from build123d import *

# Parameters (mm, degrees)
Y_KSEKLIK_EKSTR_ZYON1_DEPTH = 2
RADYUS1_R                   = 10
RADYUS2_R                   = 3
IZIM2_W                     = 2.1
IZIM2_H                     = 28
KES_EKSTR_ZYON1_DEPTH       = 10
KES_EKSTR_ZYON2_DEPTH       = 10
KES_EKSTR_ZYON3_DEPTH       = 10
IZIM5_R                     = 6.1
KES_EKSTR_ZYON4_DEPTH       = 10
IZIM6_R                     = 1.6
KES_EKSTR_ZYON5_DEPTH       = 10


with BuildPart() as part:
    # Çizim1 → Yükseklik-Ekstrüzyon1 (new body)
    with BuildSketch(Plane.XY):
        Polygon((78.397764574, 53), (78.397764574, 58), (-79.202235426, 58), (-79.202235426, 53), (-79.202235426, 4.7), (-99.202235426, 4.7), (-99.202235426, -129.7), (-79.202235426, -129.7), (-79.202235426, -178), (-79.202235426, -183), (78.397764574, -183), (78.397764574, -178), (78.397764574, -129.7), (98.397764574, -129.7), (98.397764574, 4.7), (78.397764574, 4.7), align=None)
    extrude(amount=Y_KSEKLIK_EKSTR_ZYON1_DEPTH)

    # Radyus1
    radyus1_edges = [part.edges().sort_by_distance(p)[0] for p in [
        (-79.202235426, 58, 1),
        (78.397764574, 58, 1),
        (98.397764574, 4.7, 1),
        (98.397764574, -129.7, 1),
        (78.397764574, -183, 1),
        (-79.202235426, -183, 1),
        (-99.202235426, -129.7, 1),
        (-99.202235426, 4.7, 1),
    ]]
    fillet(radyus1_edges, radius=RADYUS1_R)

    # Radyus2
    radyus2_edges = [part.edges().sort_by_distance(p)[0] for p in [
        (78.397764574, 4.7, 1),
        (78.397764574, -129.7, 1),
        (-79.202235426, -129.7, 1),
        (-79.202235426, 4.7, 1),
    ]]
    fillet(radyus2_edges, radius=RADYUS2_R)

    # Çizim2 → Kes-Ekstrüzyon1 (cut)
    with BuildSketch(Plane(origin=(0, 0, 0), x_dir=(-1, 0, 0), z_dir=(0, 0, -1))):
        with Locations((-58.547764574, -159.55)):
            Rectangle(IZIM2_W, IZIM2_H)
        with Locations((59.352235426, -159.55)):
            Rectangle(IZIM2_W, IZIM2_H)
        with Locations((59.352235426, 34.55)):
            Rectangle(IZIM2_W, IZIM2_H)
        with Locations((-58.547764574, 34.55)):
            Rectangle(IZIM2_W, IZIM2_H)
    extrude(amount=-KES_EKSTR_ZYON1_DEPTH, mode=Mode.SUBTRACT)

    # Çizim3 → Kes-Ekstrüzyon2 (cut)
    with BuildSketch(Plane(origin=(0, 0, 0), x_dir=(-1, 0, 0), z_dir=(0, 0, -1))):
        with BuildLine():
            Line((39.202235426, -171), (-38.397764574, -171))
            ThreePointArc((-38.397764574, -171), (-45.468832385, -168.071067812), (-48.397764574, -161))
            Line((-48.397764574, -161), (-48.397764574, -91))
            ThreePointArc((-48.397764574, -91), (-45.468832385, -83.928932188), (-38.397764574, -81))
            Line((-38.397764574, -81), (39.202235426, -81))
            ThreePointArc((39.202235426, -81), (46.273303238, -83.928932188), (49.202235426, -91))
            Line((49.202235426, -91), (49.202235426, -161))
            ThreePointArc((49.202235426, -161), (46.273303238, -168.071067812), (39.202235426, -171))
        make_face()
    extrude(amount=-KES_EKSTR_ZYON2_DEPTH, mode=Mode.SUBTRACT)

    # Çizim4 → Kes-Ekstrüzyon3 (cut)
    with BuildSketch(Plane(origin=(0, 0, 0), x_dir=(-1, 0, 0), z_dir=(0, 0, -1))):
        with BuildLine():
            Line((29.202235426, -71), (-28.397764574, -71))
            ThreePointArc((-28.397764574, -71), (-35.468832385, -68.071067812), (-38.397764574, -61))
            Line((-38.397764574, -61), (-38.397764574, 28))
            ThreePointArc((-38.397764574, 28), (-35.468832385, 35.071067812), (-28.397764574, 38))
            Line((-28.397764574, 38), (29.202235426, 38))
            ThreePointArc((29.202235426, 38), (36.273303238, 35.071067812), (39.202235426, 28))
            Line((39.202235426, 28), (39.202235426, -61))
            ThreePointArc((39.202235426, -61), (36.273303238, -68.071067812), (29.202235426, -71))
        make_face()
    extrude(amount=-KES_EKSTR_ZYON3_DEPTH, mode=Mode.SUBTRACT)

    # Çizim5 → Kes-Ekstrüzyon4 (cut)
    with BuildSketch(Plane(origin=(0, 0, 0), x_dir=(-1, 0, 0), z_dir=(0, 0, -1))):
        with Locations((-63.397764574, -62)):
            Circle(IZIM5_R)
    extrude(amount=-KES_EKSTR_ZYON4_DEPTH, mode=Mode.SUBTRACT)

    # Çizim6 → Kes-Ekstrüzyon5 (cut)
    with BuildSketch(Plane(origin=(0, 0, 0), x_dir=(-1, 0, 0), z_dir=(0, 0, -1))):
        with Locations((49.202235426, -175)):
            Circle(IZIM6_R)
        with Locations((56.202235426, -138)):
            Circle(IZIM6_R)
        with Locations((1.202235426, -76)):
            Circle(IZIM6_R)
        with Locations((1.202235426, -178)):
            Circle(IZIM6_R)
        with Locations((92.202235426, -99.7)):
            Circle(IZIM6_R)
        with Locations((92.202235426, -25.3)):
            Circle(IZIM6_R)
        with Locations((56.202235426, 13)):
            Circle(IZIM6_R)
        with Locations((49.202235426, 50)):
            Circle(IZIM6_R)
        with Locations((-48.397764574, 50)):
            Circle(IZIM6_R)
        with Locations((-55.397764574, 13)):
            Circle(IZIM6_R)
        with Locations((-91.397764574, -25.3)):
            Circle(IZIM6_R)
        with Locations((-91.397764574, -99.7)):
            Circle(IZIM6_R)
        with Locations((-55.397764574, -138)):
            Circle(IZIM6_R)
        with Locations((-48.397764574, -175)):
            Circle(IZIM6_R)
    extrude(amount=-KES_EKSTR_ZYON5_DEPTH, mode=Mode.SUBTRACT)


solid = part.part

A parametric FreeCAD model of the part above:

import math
import FreeCAD as App
import Part
import Sketcher
from FreeCAD import Vector
Q = App.Units.Quantity


def edges_at(feature, points):
    """Names of the edges that pass closest to the given points."""
    edges = feature.Shape.Edges
    near = lambda p: min(range(len(edges)), key=lambda i: edges[i].distToShape(Part.Vertex(*p))[0])
    return sorted({f"Edge{near(p) + 1}" for p in points})

doc = App.newDocument("Part")
body = doc.addObject("PartDesign::Body", "Body")

# Sketch on XY plane
sketch1 = body.newObject("Sketcher::SketchObject", "Sketch")
sketch1.AttachmentSupport = (doc.getObject("XY_Plane"), [""])
sketch1.MapMode = "FlatFace"
sketch1.addGeometry([
    Part.LineSegment(Vector(78, 58, 0), Vector(-79, 58, 0)),  # 0
    Part.LineSegment(Vector(-79, 58, 0), Vector(-79, 5, 0)),  # 1
    Part.LineSegment(Vector(-79, 5, 0), Vector(-99, 5, 0)),  # 2
    Part.LineSegment(Vector(-99, 5, 0), Vector(-99, -130, 0)),  # 3
    Part.LineSegment(Vector(-99, -130, 0), Vector(-79, -130, 0)),  # 4
    Part.LineSegment(Vector(-79, -130, 0), Vector(-79, -183, 0)),  # 5
    Part.LineSegment(Vector(-79, -183, 0), Vector(78, -183, 0)),  # 6
    Part.LineSegment(Vector(78, -183, 0), Vector(78, -130, 0)),  # 7
    Part.LineSegment(Vector(78, -130, 0), Vector(98, -130, 0)),  # 8
    Part.LineSegment(Vector(98, -130, 0), Vector(98, 5, 0)),  # 9
    Part.LineSegment(Vector(98, 5, 0), Vector(78, 5, 0)),  # 10
    Part.LineSegment(Vector(78, 5, 0), Vector(78, 58, 0)),  # 11
], False)
sketch1.addConstraint([
    Sketcher.Constraint("Coincident", 0, 2, 1, 1),
    Sketcher.Constraint("Coincident", 1, 2, 2, 1),
    Sketcher.Constraint("Coincident", 2, 2, 3, 1),
    Sketcher.Constraint("Coincident", 3, 2, 4, 1),
    Sketcher.Constraint("Coincident", 4, 2, 5, 1),
    Sketcher.Constraint("Coincident", 5, 2, 6, 1),
    Sketcher.Constraint("Coincident", 6, 2, 7, 1),
    Sketcher.Constraint("Coincident", 7, 2, 8, 1),
    Sketcher.Constraint("Coincident", 8, 2, 9, 1),
    Sketcher.Constraint("Coincident", 9, 2, 10, 1),
    Sketcher.Constraint("Coincident", 10, 2, 11, 1),
    Sketcher.Constraint("Coincident", 11, 2, 0, 1),
    Sketcher.Constraint("Horizontal", 0),
    Sketcher.Constraint("Vertical", 1),
    Sketcher.Constraint("Horizontal", 2),
    Sketcher.Constraint("Vertical", 3),
    Sketcher.Constraint("Horizontal", 4),
    Sketcher.Constraint("Vertical", 5),
    Sketcher.Constraint("Horizontal", 6),
    Sketcher.Constraint("Vertical", 7),
    Sketcher.Constraint("Horizontal", 8),
    Sketcher.Constraint("Vertical", 9),
    Sketcher.Constraint("Horizontal", 10),
    Sketcher.Constraint("Vertical", 11),
    Sketcher.Constraint("Horizontal", 4, 2, 7, 2),
    Sketcher.Constraint("Horizontal", 2, 2, 9, 2),
    Sketcher.Constraint("Vertical", 1, 2, 4, 2),
    Sketcher.Constraint("Vertical", 7, 2, 10, 2),
    Sketcher.Constraint("Equal", 4, 8),
    Sketcher.Constraint("Equal", 1, 5),
    Sketcher.Constraint("DistanceX", 2, 2, 2, 1, Q("20 mm")),
    Sketcher.Constraint("DistanceX", 0, 2, 0, 1, Q("157.6 mm")),
    Sketcher.Constraint("DistanceY", 1, 2, 1, 1, Q("53.3 mm")),
    Sketcher.Constraint("DistanceY", 3, 2, 3, 1, Q("134.4 mm")),
    Sketcher.Constraint("DistanceY", -1, 1, 0, 2, Q("58 mm")),
    Sketcher.Constraint("DistanceX", 0, 2, -1, 1, Q("79.202235 mm")),
])
pad1 = body.newObject("PartDesign::Pad", "Pad")
pad1.Profile = sketch1
pad1.Length = 2
doc.recompute()

fillet = body.newObject("PartDesign::Fillet", "Fillet")
fillet.Base = (pad1, edges_at(pad1, [
    (-79.202, 58, 1),
    (78.398, 58, 1),
    (98.398, 4.7, 1),
    (98.398, -129.7, 1),
    (78.398, -183, 1),
    (-79.202, -183, 1),
    (-99.202, -129.7, 1),
    (-99.202, 4.7, 1),
]))
fillet.Radius = 10
doc.recompute()

fillet2 = body.newObject("PartDesign::Fillet", "Fillet001")
fillet2.Base = (fillet, edges_at(fillet, [
    (78.398, 4.7, 1),
    (78.398, -129.7, 1),
    (-79.202, -129.7, 1),
    (-79.202, 4.7, 1),
]))
fillet2.Radius = 3

# Sketch on XY plane
sketch2 = body.newObject("Sketcher::SketchObject", "Sketch001")
sketch2.AttachmentSupport = (doc.getObject("XY_Plane"), [""])
sketch2.MapMode = "FlatFace"
sketch2.addGeometry([
    Part.LineSegment(Vector(59.6, -145.6, 0), Vector(59.6, -173.6, 0)),  # 0
    Part.LineSegment(Vector(59.6, -173.6, 0), Vector(57.5, -173.6, 0)),  # 1
    Part.LineSegment(Vector(57.5, -173.6, 0), Vector(57.5, -145.6, 0)),  # 2
    Part.LineSegment(Vector(57.5, -145.6, 0), Vector(59.6, -145.6, 0)),  # 3
    Part.LineSegment(Vector(-58.3, -145.6, 0), Vector(-58.3, -173.6, 0)),  # 4
    Part.LineSegment(Vector(-58.3, -173.6, 0), Vector(-60.4, -173.6, 0)),  # 5
    Part.LineSegment(Vector(-60.4, -173.6, 0), Vector(-60.4, -145.6, 0)),  # 6
    Part.LineSegment(Vector(-60.4, -145.6, 0), Vector(-58.3, -145.6, 0)),  # 7
    Part.LineSegment(Vector(-58.3, 48.5, 0), Vector(-58.3, 20.6, 0)),  # 8
    Part.LineSegment(Vector(-58.3, 20.6, 0), Vector(-60.4, 20.6, 0)),  # 9
    Part.LineSegment(Vector(-60.4, 20.6, 0), Vector(-60.4, 48.5, 0)),  # 10
    Part.LineSegment(Vector(-60.4, 48.5, 0), Vector(-58.3, 48.5, 0)),  # 11
    Part.LineSegment(Vector(59.6, 48.5, 0), Vector(59.6, 20.6, 0)),  # 12
    Part.LineSegment(Vector(59.6, 20.6, 0), Vector(57.5, 20.6, 0)),  # 13
    Part.LineSegment(Vector(57.5, 20.6, 0), Vector(57.5, 48.5, 0)),  # 14
    Part.LineSegment(Vector(57.5, 48.5, 0), Vector(59.6, 48.5, 0)),  # 15
], False)
sketch2.addConstraint([
    Sketcher.Constraint("Coincident", 0, 2, 1, 1),
    Sketcher.Constraint("Coincident", 1, 2, 2, 1),
    Sketcher.Constraint("Coincident", 2, 2, 3, 1),
    Sketcher.Constraint("Coincident", 3, 2, 0, 1),
    Sketcher.Constraint("Coincident", 4, 2, 5, 1),
    Sketcher.Constraint("Coincident", 5, 2, 6, 1),
    Sketcher.Constraint("Coincident", 6, 2, 7, 1),
    Sketcher.Constraint("Coincident", 7, 2, 4, 1),
    Sketcher.Constraint("Coincident", 8, 2, 9, 1),
    Sketcher.Constraint("Coincident", 9, 2, 10, 1),
    Sketcher.Constraint("Coincident", 10, 2, 11, 1),
    Sketcher.Constraint("Coincident", 11, 2, 8, 1),
    Sketcher.Constraint("Coincident", 12, 2, 13, 1),
    Sketcher.Constraint("Coincident", 13, 2, 14, 1),
    Sketcher.Constraint("Coincident", 14, 2, 15, 1),
    Sketcher.Constraint("Coincident", 15, 2, 12, 1),
    Sketcher.Constraint("Vertical", 0),
    Sketcher.Constraint("Horizontal", 1),
    Sketcher.Constraint("Vertical", 2),
    Sketcher.Constraint("Horizontal", 3),
    Sketcher.Constraint("Vertical", 4),
    Sketcher.Constraint("Horizontal", 5),
    Sketcher.Constraint("Vertical", 6),
    Sketcher.Constraint("Horizontal", 7),
    Sketcher.Constraint("Vertical", 8),
    Sketcher.Constraint("Horizontal", 9),
    Sketcher.Constraint("Vertical", 10),
    Sketcher.Constraint("Horizontal", 11),
    Sketcher.Constraint("Vertical", 12),
    Sketcher.Constraint("Horizontal", 13),
    Sketcher.Constraint("Vertical", 14),
    Sketcher.Constraint("Horizontal", 15),
    Sketcher.Constraint("Horizontal", 1, 2, 4, 2),
    Sketcher.Constraint("Horizontal", 3, 2, 6, 2),
    Sketcher.Constraint("Horizontal", 9, 2, 12, 2),
    Sketcher.Constraint("Horizontal", 11, 2, 14, 2),
    Sketcher.Constraint("Vertical", 7, 2, 8, 2),
    Sketcher.Constraint("Vertical", 6, 2, 9, 2),
    Sketcher.Constraint("Vertical", 3, 2, 12, 2),
    Sketcher.Constraint("Vertical", 2, 2, 13, 2),
    Sketcher.Constraint("Equal", 3, 5),
    Sketcher.Constraint("Equal", 6, 8),
    Sketcher.Constraint("DistanceY", 0, 2, 0, 1, Q("28 mm")),
    Sketcher.Constraint("DistanceX", 1, 2, 1, 1, Q("2.1 mm")),
    Sketcher.Constraint("DistanceX", 5, 2, 0, 2, Q("120 mm")),
    Sketcher.Constraint("DistanceY", 7, 2, 8, 2, Q("166.1 mm")),
    Sketcher.Constraint("DistanceY", 0, 2, -1, 1, Q("173.55 mm")),
    Sketcher.Constraint("DistanceX", -1, 1, 0, 2, Q("59.597765 mm")),
])
pocket1 = body.newObject("PartDesign::Pocket", "Pocket")
pocket1.Profile = sketch2
pocket1.Length = 10
pocket1.Reversed = True

# Sketch on XY plane
sketch3 = body.newObject("Sketcher::SketchObject", "Sketch002")
sketch3.AttachmentSupport = (doc.getObject("XY_Plane"), [""])
sketch3.MapMode = "FlatFace"
sketch3.addGeometry([
    Part.LineSegment(Vector(38, -171, 0), Vector(-39, -171, 0)),  # 0
    Part.ArcOfCircle(Part.Circle(Vector(-39, -161, 0), Vector(0, 0, 1), 10), math.radians(180), math.radians(270)),  # 1
    Part.LineSegment(Vector(-49, -161, 0), Vector(-49, -91, 0)),  # 2
    Part.ArcOfCircle(Part.Circle(Vector(-39, -91, 0), Vector(0, 0, 1), 10), math.radians(90), math.radians(180)),  # 3
    Part.LineSegment(Vector(-39, -81, 0), Vector(38, -81, 0)),  # 4
    Part.ArcOfCircle(Part.Circle(Vector(38, -91, 0), Vector(0, 0, 1), 10), math.radians(0), math.radians(90)),  # 5
    Part.LineSegment(Vector(48, -91, 0), Vector(48, -161, 0)),  # 6
    Part.ArcOfCircle(Part.Circle(Vector(38, -161, 0), Vector(0, 0, 1), 10), math.radians(-90), math.radians(0)),  # 7
], False)
sketch3.addConstraint([
    Sketcher.Constraint("Tangent", 0, 2, 1, 2),
    Sketcher.Constraint("Tangent", 1, 1, 2, 1),
    Sketcher.Constraint("Tangent", 2, 2, 3, 2),
    Sketcher.Constraint("Tangent", 3, 1, 4, 1),
    Sketcher.Constraint("Tangent", 4, 2, 5, 2),
    Sketcher.Constraint("Tangent", 5, 1, 6, 1),
    Sketcher.Constraint("Tangent", 6, 2, 7, 2),
    Sketcher.Constraint("Tangent", 7, 1, 0, 1),
    Sketcher.Constraint("Horizontal", 0),
    Sketcher.Constraint("Vertical", 2),
    Sketcher.Constraint("Horizontal", 4),
    Sketcher.Constraint("Vertical", 6),
    Sketcher.Constraint("Equal", 1, 3),
    Sketcher.Constraint("Equal", 3, 5),
    Sketcher.Constraint("Equal", 5, 7),
    Sketcher.Constraint("Radius", 1, Q("10 mm")),
    Sketcher.Constraint("DistanceY", 2, 1, 2, 2, Q("70 mm")),
    Sketcher.Constraint("DistanceX", 0, 2, 0, 1, Q("77.6 mm")),
    Sketcher.Constraint("DistanceY", 1, 3, -1, 1, Q("161 mm")),
    Sketcher.Constraint("DistanceX", 1, 3, -1, 1, Q("39.202235 mm")),
])
pocket2 = body.newObject("PartDesign::Pocket", "Pocket001")
pocket2.Profile = sketch3
pocket2.Length = 10
pocket2.Reversed = True

# Sketch on XY plane
sketch4 = body.newObject("Sketcher::SketchObject", "Sketch003")
sketch4.AttachmentSupport = (doc.getObject("XY_Plane"), [""])
sketch4.MapMode = "FlatFace"
sketch4.addGeometry([
    Part.LineSegment(Vector(28, -71, 0), Vector(-29, -71, 0)),  # 0
    Part.ArcOfCircle(Part.Circle(Vector(-29, -61, 0), Vector(0, 0, 1), 10), math.radians(180), math.radians(270)),  # 1
    Part.LineSegment(Vector(-39, -61, 0), Vector(-39, 28, 0)),  # 2
    Part.ArcOfCircle(Part.Circle(Vector(-29, 28, 0), Vector(0, 0, 1), 10), math.radians(90), math.radians(180)),  # 3
    Part.LineSegment(Vector(-29, 38, 0), Vector(28, 38, 0)),  # 4
    Part.ArcOfCircle(Part.Circle(Vector(28, 28, 0), Vector(0, 0, 1), 10), math.radians(0), math.radians(90)),  # 5
    Part.LineSegment(Vector(38, 28, 0), Vector(38, -61, 0)),  # 6
    Part.ArcOfCircle(Part.Circle(Vector(28, -61, 0), Vector(0, 0, 1), 10), math.radians(-90), math.radians(0)),  # 7
], False)
sketch4.addConstraint([
    Sketcher.Constraint("Tangent", 0, 2, 1, 2),
    Sketcher.Constraint("Tangent", 1, 1, 2, 1),
    Sketcher.Constraint("Tangent", 2, 2, 3, 2),
    Sketcher.Constraint("Tangent", 3, 1, 4, 1),
    Sketcher.Constraint("Tangent", 4, 2, 5, 2),
    Sketcher.Constraint("Tangent", 5, 1, 6, 1),
    Sketcher.Constraint("Tangent", 6, 2, 7, 2),
    Sketcher.Constraint("Tangent", 7, 1, 0, 1),
    Sketcher.Constraint("Horizontal", 0),
    Sketcher.Constraint("Vertical", 2),
    Sketcher.Constraint("Horizontal", 4),
    Sketcher.Constraint("Vertical", 6),
    Sketcher.Constraint("Equal", 1, 3),
    Sketcher.Constraint("Equal", 3, 5),
    Sketcher.Constraint("Equal", 5, 7),
    Sketcher.Constraint("Radius", 1, Q("10 mm")),
    Sketcher.Constraint("DistanceY", 2, 1, 2, 2, Q("89 mm")),
    Sketcher.Constraint("DistanceX", 0, 2, 0, 1, Q("57.6 mm")),
    Sketcher.Constraint("DistanceY", 1, 3, -1, 1, Q("61 mm")),
    Sketcher.Constraint("DistanceX", 1, 3, -1, 1, Q("29.202235 mm")),
])
pocket3 = body.newObject("PartDesign::Pocket", "Pocket002")
pocket3.Profile = sketch4
pocket3.Length = 10
pocket3.Reversed = True

# Sketch on XY plane
sketch5 = body.newObject("Sketcher::SketchObject", "Sketch004")
sketch5.AttachmentSupport = (doc.getObject("XY_Plane"), [""])
sketch5.MapMode = "FlatFace"
sketch5.addGeometry(Part.Circle(Vector(63, -62, 0), Vector(0, 0, 1), 6), False)
sketch5.addConstraint([
    Sketcher.Constraint("Diameter", 0, Q("12.2 mm")),
    Sketcher.Constraint("DistanceY", 0, 3, -1, 1, Q("62 mm")),
    Sketcher.Constraint("DistanceX", -1, 1, 0, 3, Q("63.397765 mm")),
])
pocket4 = body.newObject("PartDesign::Pocket", "Pocket003")
pocket4.Profile = sketch5
pocket4.Length = 10
pocket4.Reversed = True

# Sketch on XY plane
sketch6 = body.newObject("Sketcher::SketchObject", "Sketch005")
sketch6.AttachmentSupport = (doc.getObject("XY_Plane"), [""])
sketch6.MapMode = "FlatFace"
sketch6.addGeometry([
    Part.Circle(Vector(-49.2, -175, 0), Vector(0, 0, 1), 1.6),  # 0
    Part.Circle(Vector(-56.2, -138, 0), Vector(0, 0, 1), 1.6),  # 1
    Part.Circle(Vector(-1.2, -76, 0), Vector(0, 0, 1), 1.6),  # 2
    Part.Circle(Vector(-1.2, -178, 0), Vector(0, 0, 1), 1.6),  # 3
    Part.Circle(Vector(-92.2, -99.7, 0), Vector(0, 0, 1), 1.6),  # 4
    Part.Circle(Vector(-92.2, -25.3, 0), Vector(0, 0, 1), 1.6),  # 5
    Part.Circle(Vector(-56.2, 13, 0), Vector(0, 0, 1), 1.6),  # 6
    Part.Circle(Vector(-49.2, 50, 0), Vector(0, 0, 1), 1.6),  # 7
    Part.Circle(Vector(48.4, 50, 0), Vector(0, 0, 1), 1.6),  # 8
    Part.Circle(Vector(55.4, 13, 0), Vector(0, 0, 1), 1.6),  # 9
    Part.Circle(Vector(91.4, -25.3, 0), Vector(0, 0, 1), 1.6),  # 10
    Part.Circle(Vector(91.4, -99.7, 0), Vector(0, 0, 1), 1.6),  # 11
    Part.Circle(Vector(55.4, -138, 0), Vector(0, 0, 1), 1.6),  # 12
    Part.Circle(Vector(48.4, -175, 0), Vector(0, 0, 1), 1.6),  # 13
], False)
sketch6.addConstraint([
    Sketcher.Constraint("Equal", 0, 1),
    Sketcher.Constraint("Equal", 1, 2),
    Sketcher.Constraint("Equal", 2, 3),
    Sketcher.Constraint("Equal", 3, 4),
    Sketcher.Constraint("Equal", 4, 5),
    Sketcher.Constraint("Equal", 5, 6),
    Sketcher.Constraint("Equal", 6, 7),
    Sketcher.Constraint("Equal", 7, 8),
    Sketcher.Constraint("Equal", 8, 9),
    Sketcher.Constraint("Equal", 9, 10),
    Sketcher.Constraint("Equal", 10, 11),
    Sketcher.Constraint("Equal", 11, 12),
    Sketcher.Constraint("Equal", 12, 13),
    Sketcher.Constraint("Horizontal", 7, 3, 8, 3),
    Sketcher.Constraint("Horizontal", 6, 3, 9, 3),
    Sketcher.Constraint("Horizontal", 5, 3, 10, 3),
    Sketcher.Constraint("Horizontal", 4, 3, 11, 3),
    Sketcher.Constraint("Horizontal", 1, 3, 12, 3),
    Sketcher.Constraint("Horizontal", 0, 3, 13, 3),
    Sketcher.Constraint("Vertical", 2, 3, 3, 3),
    Sketcher.Constraint("Vertical", 4, 3, 5, 3),
    Sketcher.Constraint("Vertical", 1, 3, 6, 3),
    Sketcher.Constraint("Vertical", 0, 3, 7, 3),
    Sketcher.Constraint("Vertical", 10, 3, 11, 3),
    Sketcher.Constraint("Vertical", 9, 3, 12, 3),
    Sketcher.Constraint("Vertical", 8, 3, 13, 3),
    Sketcher.Constraint("Diameter", 0, Q("3.2 mm")),
    Sketcher.Constraint("DistanceY", 0, 3, -1, 1, Q("175 mm")),
    Sketcher.Constraint("DistanceY", 1, 3, -1, 1, Q("138 mm")),
    Sketcher.Constraint("DistanceY", 2, 3, -1, 1, Q("76 mm")),
    Sketcher.Constraint("DistanceY", 3, 3, -1, 1, Q("178 mm")),
    Sketcher.Constraint("DistanceY", -1, 1, 6, 3, Q("13 mm")),
    Sketcher.Constraint("DistanceY", -1, 1, 7, 3, Q("50 mm")),
    Sketcher.Constraint("DistanceX", 1, 3, 0, 3, Q("7 mm")),
    Sketcher.Constraint("DistanceX", 1, 3, 2, 3, Q("55 mm")),
    Sketcher.Constraint("DistanceX", 4, 3, 1, 3, Q("36 mm")),
    Sketcher.Constraint("DistanceX", 8, 3, 9, 3, Q("7 mm")),
    Sketcher.Constraint("DistanceX", 9, 3, 10, 3, Q("36 mm")),
    Sketcher.Constraint("DistanceY", 4, 3, -1, 1, Q("99.7 mm")),
    Sketcher.Constraint("DistanceY", 5, 3, -1, 1, Q("25.3 mm")),
    Sketcher.Constraint("DistanceX", 7, 3, 8, 3, Q("97.6 mm")),
    Sketcher.Constraint("DistanceX", 0, 3, -1, 1, Q("49.202235 mm")),
])
pocket5 = body.newObject("PartDesign::Pocket", "Pocket004")
pocket5.Profile = sketch6
pocket5.Length = 10
pocket5.Reversed = True

doc.recompute()
